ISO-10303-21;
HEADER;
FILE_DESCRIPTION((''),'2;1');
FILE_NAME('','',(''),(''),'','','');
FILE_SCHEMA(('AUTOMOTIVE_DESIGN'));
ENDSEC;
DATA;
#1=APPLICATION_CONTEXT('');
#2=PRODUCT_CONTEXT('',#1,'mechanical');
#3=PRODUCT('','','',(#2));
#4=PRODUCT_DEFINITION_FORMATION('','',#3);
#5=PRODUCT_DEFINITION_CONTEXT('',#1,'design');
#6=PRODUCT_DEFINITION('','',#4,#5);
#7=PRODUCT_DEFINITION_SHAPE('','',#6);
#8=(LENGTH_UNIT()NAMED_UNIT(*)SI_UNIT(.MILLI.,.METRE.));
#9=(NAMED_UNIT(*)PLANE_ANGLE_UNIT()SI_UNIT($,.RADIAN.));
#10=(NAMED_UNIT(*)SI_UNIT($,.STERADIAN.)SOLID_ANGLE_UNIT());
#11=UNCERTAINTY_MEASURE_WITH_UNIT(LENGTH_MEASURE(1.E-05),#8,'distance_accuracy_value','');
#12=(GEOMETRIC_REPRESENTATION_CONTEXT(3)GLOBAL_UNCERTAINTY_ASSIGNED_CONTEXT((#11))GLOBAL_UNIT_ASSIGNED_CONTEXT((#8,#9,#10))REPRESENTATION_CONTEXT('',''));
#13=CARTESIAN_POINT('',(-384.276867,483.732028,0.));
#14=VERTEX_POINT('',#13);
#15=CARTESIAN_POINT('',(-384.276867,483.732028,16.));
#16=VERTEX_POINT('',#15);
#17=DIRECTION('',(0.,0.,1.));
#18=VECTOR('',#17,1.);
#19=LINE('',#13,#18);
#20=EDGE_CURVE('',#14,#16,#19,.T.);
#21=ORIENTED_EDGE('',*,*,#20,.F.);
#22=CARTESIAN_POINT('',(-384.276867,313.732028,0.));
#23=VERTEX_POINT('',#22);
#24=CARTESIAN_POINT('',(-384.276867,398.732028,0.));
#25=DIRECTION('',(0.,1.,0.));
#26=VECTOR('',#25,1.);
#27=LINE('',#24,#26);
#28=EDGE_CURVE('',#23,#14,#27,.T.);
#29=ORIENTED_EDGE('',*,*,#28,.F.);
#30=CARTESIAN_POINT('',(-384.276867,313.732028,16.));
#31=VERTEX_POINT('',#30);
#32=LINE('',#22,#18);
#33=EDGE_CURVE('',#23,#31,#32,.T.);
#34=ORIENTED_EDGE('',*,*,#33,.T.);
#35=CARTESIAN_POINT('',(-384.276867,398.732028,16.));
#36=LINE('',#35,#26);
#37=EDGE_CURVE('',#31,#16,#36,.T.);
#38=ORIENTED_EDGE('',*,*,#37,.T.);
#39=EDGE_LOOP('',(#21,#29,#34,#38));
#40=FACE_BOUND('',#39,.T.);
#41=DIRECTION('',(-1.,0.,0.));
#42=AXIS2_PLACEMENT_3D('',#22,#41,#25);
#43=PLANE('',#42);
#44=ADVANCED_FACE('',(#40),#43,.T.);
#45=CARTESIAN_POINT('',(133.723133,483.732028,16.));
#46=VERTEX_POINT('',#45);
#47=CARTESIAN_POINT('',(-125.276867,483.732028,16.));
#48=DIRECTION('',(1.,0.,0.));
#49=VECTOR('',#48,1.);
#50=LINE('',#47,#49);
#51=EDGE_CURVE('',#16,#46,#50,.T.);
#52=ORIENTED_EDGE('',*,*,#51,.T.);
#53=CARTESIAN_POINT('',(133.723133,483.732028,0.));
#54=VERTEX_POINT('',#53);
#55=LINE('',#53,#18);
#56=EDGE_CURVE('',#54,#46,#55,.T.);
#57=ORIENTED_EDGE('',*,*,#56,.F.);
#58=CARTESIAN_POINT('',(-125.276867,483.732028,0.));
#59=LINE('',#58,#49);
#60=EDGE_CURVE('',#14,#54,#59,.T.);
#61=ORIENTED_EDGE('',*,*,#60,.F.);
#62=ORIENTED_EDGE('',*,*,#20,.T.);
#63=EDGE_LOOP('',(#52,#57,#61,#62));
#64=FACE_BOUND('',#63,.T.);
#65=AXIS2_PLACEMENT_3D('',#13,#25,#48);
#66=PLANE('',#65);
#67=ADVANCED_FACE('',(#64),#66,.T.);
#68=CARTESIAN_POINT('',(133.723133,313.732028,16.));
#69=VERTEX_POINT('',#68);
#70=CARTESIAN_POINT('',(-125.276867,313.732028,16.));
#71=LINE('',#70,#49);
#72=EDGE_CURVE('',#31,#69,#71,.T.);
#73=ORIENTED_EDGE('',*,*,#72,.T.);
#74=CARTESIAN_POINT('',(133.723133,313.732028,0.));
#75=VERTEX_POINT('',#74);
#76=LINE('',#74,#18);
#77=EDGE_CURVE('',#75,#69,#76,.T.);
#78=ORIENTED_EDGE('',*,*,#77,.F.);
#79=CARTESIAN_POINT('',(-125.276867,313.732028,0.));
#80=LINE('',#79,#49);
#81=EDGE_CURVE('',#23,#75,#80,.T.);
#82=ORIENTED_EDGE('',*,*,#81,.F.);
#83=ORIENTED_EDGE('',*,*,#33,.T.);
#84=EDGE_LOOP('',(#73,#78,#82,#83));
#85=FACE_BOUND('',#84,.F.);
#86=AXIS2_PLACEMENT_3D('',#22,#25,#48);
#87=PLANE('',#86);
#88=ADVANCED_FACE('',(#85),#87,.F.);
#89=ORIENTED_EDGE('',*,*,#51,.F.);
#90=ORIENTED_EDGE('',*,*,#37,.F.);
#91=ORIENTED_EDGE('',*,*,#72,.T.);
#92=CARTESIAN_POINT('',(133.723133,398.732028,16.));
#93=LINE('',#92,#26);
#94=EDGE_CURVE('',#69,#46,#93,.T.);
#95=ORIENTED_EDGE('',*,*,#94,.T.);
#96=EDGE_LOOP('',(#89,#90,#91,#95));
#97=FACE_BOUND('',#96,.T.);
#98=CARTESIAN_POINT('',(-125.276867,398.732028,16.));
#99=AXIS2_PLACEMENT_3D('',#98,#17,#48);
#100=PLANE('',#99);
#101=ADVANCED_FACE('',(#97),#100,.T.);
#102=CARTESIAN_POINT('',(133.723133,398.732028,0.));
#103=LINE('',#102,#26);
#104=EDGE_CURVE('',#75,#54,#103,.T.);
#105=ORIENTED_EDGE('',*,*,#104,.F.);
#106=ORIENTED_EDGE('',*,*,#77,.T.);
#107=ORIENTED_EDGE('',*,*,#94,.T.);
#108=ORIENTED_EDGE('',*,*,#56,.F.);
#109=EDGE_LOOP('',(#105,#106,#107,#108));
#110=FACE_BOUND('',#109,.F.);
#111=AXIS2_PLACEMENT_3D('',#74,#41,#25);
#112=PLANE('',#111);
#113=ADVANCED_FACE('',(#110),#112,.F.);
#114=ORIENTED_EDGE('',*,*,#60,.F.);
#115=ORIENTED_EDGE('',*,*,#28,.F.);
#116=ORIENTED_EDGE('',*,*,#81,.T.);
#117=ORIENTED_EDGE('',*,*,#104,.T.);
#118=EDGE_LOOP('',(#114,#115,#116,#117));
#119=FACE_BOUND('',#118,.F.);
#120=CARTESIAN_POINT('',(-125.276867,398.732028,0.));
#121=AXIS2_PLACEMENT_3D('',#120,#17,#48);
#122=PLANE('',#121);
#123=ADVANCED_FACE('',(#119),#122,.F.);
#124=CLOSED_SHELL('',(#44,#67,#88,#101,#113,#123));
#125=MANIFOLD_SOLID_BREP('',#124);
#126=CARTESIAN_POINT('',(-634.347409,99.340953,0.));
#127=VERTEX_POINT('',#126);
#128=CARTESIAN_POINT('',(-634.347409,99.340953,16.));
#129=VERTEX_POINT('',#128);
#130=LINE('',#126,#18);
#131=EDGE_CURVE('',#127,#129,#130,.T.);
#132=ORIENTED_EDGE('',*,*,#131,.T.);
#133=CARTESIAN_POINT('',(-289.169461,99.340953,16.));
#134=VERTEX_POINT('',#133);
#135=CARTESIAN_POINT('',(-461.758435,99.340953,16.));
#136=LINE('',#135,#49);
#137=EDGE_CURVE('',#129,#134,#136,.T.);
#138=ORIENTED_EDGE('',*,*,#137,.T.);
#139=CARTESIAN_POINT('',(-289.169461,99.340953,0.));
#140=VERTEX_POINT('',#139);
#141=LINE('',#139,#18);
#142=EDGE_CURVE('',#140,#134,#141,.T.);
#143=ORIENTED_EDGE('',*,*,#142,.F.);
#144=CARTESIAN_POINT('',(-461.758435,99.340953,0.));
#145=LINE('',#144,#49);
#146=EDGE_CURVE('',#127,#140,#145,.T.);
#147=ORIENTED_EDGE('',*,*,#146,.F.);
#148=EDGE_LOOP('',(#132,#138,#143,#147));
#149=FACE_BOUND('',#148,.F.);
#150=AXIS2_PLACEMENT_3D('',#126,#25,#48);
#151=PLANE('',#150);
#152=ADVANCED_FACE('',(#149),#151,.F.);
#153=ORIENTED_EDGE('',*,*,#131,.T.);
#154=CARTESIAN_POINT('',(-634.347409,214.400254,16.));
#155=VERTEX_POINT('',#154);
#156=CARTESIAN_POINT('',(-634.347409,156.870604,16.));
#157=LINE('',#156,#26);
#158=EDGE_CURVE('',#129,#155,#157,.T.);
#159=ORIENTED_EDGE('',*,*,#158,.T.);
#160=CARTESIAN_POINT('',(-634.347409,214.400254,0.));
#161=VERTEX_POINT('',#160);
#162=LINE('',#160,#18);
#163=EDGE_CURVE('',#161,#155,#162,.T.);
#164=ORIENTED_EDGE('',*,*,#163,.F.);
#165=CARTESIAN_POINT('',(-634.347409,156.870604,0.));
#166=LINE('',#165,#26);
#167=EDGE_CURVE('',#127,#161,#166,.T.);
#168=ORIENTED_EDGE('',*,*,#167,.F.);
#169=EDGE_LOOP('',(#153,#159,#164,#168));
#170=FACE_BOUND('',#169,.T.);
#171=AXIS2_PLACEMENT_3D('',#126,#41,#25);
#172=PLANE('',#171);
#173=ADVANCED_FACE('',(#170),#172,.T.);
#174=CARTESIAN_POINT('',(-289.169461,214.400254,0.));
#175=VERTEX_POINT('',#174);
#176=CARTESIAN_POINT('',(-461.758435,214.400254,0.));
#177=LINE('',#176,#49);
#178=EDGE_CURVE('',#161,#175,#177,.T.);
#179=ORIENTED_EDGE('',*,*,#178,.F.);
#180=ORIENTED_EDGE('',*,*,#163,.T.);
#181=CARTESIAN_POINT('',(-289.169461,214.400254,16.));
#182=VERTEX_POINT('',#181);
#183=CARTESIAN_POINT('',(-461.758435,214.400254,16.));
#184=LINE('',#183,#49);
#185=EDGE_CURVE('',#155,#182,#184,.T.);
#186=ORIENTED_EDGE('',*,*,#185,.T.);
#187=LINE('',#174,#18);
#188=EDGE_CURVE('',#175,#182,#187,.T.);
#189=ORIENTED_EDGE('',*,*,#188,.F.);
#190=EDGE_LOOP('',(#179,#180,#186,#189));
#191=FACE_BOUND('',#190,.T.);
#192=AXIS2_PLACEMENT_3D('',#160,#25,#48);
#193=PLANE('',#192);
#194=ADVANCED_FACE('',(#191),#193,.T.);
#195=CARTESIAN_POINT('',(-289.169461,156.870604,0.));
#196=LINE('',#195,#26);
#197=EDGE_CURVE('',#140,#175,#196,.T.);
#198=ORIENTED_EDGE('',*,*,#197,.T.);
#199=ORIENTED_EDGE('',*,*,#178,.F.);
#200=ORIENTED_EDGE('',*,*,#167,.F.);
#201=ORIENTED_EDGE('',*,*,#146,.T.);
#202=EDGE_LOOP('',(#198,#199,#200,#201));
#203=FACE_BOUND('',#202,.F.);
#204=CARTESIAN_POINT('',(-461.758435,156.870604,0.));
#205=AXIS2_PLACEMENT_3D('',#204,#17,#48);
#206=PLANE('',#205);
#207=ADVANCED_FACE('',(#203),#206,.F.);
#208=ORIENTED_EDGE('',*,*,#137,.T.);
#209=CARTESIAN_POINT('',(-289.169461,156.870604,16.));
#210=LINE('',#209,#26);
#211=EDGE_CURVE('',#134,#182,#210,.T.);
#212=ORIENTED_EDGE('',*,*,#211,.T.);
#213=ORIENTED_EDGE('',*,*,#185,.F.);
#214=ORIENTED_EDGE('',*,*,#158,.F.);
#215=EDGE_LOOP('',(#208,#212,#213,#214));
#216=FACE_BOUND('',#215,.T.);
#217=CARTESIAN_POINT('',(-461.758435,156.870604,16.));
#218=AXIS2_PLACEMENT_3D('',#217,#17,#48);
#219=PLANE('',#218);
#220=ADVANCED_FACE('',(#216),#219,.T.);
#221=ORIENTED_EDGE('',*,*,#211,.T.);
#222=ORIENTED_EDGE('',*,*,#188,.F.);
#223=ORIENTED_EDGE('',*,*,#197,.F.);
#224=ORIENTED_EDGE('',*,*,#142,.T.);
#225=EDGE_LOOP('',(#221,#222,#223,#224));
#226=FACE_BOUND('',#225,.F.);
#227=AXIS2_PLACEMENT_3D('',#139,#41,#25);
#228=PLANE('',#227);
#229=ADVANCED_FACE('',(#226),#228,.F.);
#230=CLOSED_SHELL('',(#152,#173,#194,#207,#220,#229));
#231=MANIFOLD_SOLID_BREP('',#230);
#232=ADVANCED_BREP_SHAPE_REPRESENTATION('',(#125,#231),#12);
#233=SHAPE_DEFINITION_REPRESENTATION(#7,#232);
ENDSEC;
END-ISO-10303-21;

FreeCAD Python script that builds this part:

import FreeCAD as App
import Part
import Sketcher
Q = App.Units.Quantity

doc = App.newDocument("Part")
body = doc.addObject("PartDesign::Body", "Body")

# Sketch on XY plane
sketch1 = body.newObject("Sketcher::SketchObject", "Sketch")
sketch1.AttachmentSupport = (doc.getObject("XY_Plane"), [""])
sketch1.MapMode = "FlatFace"
sketch1.addGeometry(Part.LineSegment(App.Vector(-384, 484, 0), App.Vector(-384, 314, 0)), False)
sketch1.addGeometry(Part.LineSegment(App.Vector(-384, 314, 0), App.Vector(134, 314, 0)), False)
sketch1.addGeometry(Part.LineSegment(App.Vector(134, 314, 0), App.Vector(134, 484, 0)), False)
sketch1.addGeometry(Part.LineSegment(App.Vector(134, 484, 0), App.Vector(-384, 484, 0)), False)
sketch1.addConstraint(Sketcher.Constraint("Coincident", 0, 2, 1, 1))
sketch1.addConstraint(Sketcher.Constraint("Coincident", 1, 2, 2, 1))
sketch1.addConstraint(Sketcher.Constraint("Coincident", 2, 2, 3, 1))
sketch1.addConstraint(Sketcher.Constraint("Coincident", 3, 2, 0, 1))
sketch1.addConstraint(Sketcher.Constraint("Vertical", 0))
sketch1.addConstraint(Sketcher.Constraint("Horizontal", 1))
sketch1.addConstraint(Sketcher.Constraint("Vertical", 2))
sketch1.addConstraint(Sketcher.Constraint("Horizontal", 3))
sketch1.addConstraint(Sketcher.Constraint("DistanceX", 1, 1, 1, 2, Q("518 mm")))
sketch1.addConstraint(Sketcher.Constraint("DistanceY", 0, 2, 0, 1, Q("170 mm")))
sketch1.addConstraint(Sketcher.Constraint("DistanceY", -1, 1, 0, 2, Q("313.732028 mm")))
sketch1.addConstraint(Sketcher.Constraint("DistanceX", 0, 2, -1, 1, Q("384.276867 mm")))
pad1 = body.newObject("PartDesign::Pad", "Pad")
pad1.Profile = sketch1
pad1.Length = 16
body2 = doc.addObject("PartDesign::Body", "Body001")

# Sketch on XY plane
sketch2 = body2.newObject("Sketcher::SketchObject", "Sketch001")
sketch2.AttachmentSupport = (doc.getObject("XY_Plane001"), [""])
sketch2.MapMode = "FlatFace"
sketch2.addGeometry(Part.LineSegment(App.Vector(-634, 214, 0), App.Vector(-634, 99, 0)), False)
sketch2.addGeometry(Part.LineSegment(App.Vector(-634, 99, 0), App.Vector(-289, 99, 0)), False)
sketch2.addGeometry(Part.LineSegment(App.Vector(-289, 99, 0), App.Vector(-289, 214, 0)), False)
sketch2.addGeometry(Part.LineSegment(App.Vector(-289, 214, 0), App.Vector(-634, 214, 0)), False)
sketch2.addConstraint(Sketcher.Constraint("Coincident", 0, 2, 1, 1))
sketch2.addConstraint(Sketcher.Constraint("Coincident", 1, 2, 2, 1))
sketch2.addConstraint(Sketcher.Constraint("Coincident", 2, 2, 3, 1))
sketch2.addConstraint(Sketcher.Constraint("Coincident", 3, 2, 0, 1))
sketch2.addConstraint(Sketcher.Constraint("Vertical", 0))
sketch2.addConstraint(Sketcher.Constraint("Horizontal", 1))
sketch2.addConstraint(Sketcher.Constraint("Vertical", 2))
sketch2.addConstraint(Sketcher.Constraint("Horizontal", 3))
sketch2.addConstraint(Sketcher.Constraint("DistanceY", 0, 2, 0, 1, Q("115.059301 mm")))
sketch2.addConstraint(Sketcher.Constraint("DistanceX", 1, 1, 1, 2, Q("345.177948 mm")))
sketch2.addConstraint(Sketcher.Constraint("DistanceX", 0, 2, -1, 1, Q("634.347409 mm")))
sketch2.addConstraint(Sketcher.Constraint("DistanceY", -1, 1, 0, 2, Q("99.340953 mm")))
pad2 = body2.newObject("PartDesign::Pad", "Pad001")
pad2.Profile = sketch2
pad2.Length = 16

doc.recompute()
